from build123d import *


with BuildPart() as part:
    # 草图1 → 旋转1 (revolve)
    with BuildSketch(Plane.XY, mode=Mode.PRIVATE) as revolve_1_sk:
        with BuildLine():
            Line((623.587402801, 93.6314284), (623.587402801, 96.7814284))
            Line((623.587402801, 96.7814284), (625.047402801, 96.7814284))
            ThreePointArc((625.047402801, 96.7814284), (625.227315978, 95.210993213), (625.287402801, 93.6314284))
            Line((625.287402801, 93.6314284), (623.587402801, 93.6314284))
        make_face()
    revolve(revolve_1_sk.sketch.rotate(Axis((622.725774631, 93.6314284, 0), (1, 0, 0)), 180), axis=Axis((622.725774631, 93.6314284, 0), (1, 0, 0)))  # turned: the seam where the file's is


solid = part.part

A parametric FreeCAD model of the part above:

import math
import FreeCAD as App
import Part
import Sketcher
from FreeCAD import Vector
Q = App.Units.Quantity

doc = App.newDocument("Part")
body = doc.addObject("PartDesign::Body", "Body")

# Sketch on XY plane
sketch1 = doc.addObject("Sketcher::SketchObject", "Sketch")
body.addObject(sketch1)
sketch1.AttachmentSupport = (doc.XY_Plane, [""])
sketch1.MapMode = "FlatFace"
sketch1.addGeometry(Part.LineSegment(Vector(623.587403, 96.781428, 0), Vector(623.587403, 93.631428, 0)), False)
sketch1.addGeometry(Part.LineSegment(Vector(623.587403, 93.631428, 0), Vector(625.287403, 93.631428, 0)), False)
sketch1.addGeometry(Part.ArcOfCircle(Part.Circle(Vector(604.495528, 93.631428, 0), Vector(0, 0, 1), 20.791875), math.radians(0), math.radians(8.71395)), False)
sketch1.addGeometry(Part.LineSegment(Vector(625.047403, 96.781428, 0), Vector(623.587403, 96.781428, 0)), False)
sketch1.addGeometry(Part.LineSegment(Vector(604.495528, 93.631428, 0), Vector(625.287403, 93.631428, 0)), True)  # axis
sketch1.addConstraint(Sketcher.Constraint("Coincident", 0, 2, 1, 1))
sketch1.addConstraint(Sketcher.Constraint("Coincident", 1, 2, 2, 1))
sketch1.addConstraint(Sketcher.Constraint("Coincident", 2, 2, 3, 1))
sketch1.addConstraint(Sketcher.Constraint("Coincident", 3, 2, 0, 1))
sketch1.addConstraint(Sketcher.Constraint("Vertical", 0))
sketch1.addConstraint(Sketcher.Constraint("Horizontal", 1))
sketch1.addConstraint(Sketcher.Constraint("Horizontal", 3))
sketch1.addConstraint(Sketcher.Constraint("Horizontal", 4))
sketch1.addConstraint(Sketcher.Constraint("Coincident", 4, 1, 2, 3))
sketch1.addConstraint(Sketcher.Constraint("Coincident", 4, 2, 1, 2))
sketch1.addConstraint(Sketcher.Constraint("DistanceX", 1, 1, 1, 2, Q("1.7 mm")))
sketch1.addConstraint(Sketcher.Constraint("DistanceX", 3, 2, 3, 1, Q("1.46 mm")))
sketch1.addConstraint(Sketcher.Constraint("DistanceY", 0, 2, 0, 1, Q("3.15 mm")))
sketch1.addConstraint(Sketcher.Constraint("DistanceY", -1, 1, 2, 3, Q("93.631428 mm")))
sketch1.addConstraint(Sketcher.Constraint("DistanceX", -1, 1, 2, 3, Q("604.495528 mm")))
revolution = doc.addObject("PartDesign::Revolution", "Revolution")
body.addObject(revolution)
revolution.Profile = sketch1
revolution.ReferenceAxis = (sketch1, ["Axis0"])
revolution.Angle = 360

doc.recompute()
